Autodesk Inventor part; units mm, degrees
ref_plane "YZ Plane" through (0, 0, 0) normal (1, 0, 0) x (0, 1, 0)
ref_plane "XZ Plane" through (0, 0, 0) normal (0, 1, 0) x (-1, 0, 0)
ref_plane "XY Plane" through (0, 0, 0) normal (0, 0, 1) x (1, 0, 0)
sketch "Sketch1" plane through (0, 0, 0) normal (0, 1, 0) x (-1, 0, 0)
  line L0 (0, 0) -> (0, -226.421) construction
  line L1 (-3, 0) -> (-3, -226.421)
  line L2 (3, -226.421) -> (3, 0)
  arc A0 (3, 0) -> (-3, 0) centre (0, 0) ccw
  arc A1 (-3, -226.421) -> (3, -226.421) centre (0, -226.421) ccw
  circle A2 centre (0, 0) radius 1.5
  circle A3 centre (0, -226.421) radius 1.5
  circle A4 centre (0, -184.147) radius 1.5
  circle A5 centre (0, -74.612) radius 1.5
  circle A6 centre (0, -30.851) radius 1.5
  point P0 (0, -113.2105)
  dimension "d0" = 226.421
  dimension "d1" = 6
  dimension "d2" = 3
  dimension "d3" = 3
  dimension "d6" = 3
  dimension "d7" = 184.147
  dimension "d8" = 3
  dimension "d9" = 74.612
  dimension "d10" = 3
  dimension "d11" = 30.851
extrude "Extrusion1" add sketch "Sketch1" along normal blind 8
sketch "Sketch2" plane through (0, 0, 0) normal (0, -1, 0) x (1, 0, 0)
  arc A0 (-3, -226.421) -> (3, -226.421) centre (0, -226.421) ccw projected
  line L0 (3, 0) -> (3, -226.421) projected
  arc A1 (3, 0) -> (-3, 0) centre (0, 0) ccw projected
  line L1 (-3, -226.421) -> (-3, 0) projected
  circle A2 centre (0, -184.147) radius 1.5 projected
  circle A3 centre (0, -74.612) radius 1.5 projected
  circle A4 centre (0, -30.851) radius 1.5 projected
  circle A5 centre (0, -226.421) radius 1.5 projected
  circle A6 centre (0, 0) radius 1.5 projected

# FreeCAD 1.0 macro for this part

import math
import FreeCAD as App
import Part
import Sketcher
Q = App.Units.Quantity

doc = App.newDocument("Part")
body = doc.addObject("PartDesign::Body", "Body")

# Sketch on XZ plane
sketch1 = body.newObject("Sketcher::SketchObject", "Sketch")
sketch1.AttachmentSupport = (doc.getObject("XZ_Plane"), [""])
sketch1.MapMode = "FlatFace"
sketch1.addGeometry([
    Part.ArcOfCircle(Part.Circle(App.Vector(0, 0, 0), App.Vector(0, 0, 1), 3), math.radians(0), math.radians(180)),  # 0
    Part.LineSegment(App.Vector(3, 0, 0), App.Vector(3, -226.4, 0)),  # 1
    Part.ArcOfCircle(Part.Circle(App.Vector(0, -226.4, 0), App.Vector(0, 0, 1), 3), math.radians(180), math.radians(360)),  # 2
    Part.LineSegment(App.Vector(-3, -226.4, 0), App.Vector(-3, 0, 0)),  # 3
    Part.Circle(App.Vector(0, -226.4, 0), App.Vector(0, 0, 1), 1.5),  # 4
    Part.Circle(App.Vector(0, -184.1, 0), App.Vector(0, 0, 1), 1.5),  # 5
    Part.Circle(App.Vector(0, -74.6, 0), App.Vector(0, 0, 1), 1.5),  # 6
    Part.Circle(App.Vector(0, -30.9, 0), App.Vector(0, 0, 1), 1.5),  # 7
    Part.Circle(App.Vector(0, 0, 0), App.Vector(0, 0, 1), 1.5),  # 8
], False)
sketch1.addConstraint([
    Sketcher.Constraint("Tangent", 0, 1, 1, 1),
    Sketcher.Constraint("Tangent", 1, 2, 2, 2),
    Sketcher.Constraint("Tangent", 2, 1, 3, 1),
    Sketcher.Constraint("Tangent", 3, 2, 0, 2),
    Sketcher.Constraint("Vertical", 1),
    Sketcher.Constraint("Vertical", 3),
    Sketcher.Constraint("Coincident", 0, 3, -1, 1),
    Sketcher.Constraint("Coincident", 8, 3, -1, 1),
    Sketcher.Constraint("Coincident", 4, 3, 2, 3),
    Sketcher.Constraint("Equal", 4, 5),
    Sketcher.Constraint("Equal", 5, 6),
    Sketcher.Constraint("Equal", 6, 7),
    Sketcher.Constraint("Equal", 7, 8),
    Sketcher.Constraint("PointOnObject", 5, 3, -2),
    Sketcher.Constraint("PointOnObject", 6, 3, -2),
    Sketcher.Constraint("PointOnObject", 7, 3, -2),
    Sketcher.Constraint("Diameter", 4, Q("3 mm")),
    Sketcher.Constraint("Radius", 0, Q("3 mm")),
    Sketcher.Constraint("DistanceY", 1, 2, 1, 1, Q("226.421 mm")),
    Sketcher.Constraint("DistanceY", 5, 3, -1, 1, Q("184.147 mm")),
    Sketcher.Constraint("DistanceY", 6, 3, -1, 1, Q("74.612 mm")),
    Sketcher.Constraint("DistanceY", 7, 3, -1, 1, Q("30.851 mm")),
])
pad1 = body.newObject("PartDesign::Pad", "Pad")
pad1.Profile = sketch1
pad1.Length = 8
pad1.Reversed = True

doc.recompute()
